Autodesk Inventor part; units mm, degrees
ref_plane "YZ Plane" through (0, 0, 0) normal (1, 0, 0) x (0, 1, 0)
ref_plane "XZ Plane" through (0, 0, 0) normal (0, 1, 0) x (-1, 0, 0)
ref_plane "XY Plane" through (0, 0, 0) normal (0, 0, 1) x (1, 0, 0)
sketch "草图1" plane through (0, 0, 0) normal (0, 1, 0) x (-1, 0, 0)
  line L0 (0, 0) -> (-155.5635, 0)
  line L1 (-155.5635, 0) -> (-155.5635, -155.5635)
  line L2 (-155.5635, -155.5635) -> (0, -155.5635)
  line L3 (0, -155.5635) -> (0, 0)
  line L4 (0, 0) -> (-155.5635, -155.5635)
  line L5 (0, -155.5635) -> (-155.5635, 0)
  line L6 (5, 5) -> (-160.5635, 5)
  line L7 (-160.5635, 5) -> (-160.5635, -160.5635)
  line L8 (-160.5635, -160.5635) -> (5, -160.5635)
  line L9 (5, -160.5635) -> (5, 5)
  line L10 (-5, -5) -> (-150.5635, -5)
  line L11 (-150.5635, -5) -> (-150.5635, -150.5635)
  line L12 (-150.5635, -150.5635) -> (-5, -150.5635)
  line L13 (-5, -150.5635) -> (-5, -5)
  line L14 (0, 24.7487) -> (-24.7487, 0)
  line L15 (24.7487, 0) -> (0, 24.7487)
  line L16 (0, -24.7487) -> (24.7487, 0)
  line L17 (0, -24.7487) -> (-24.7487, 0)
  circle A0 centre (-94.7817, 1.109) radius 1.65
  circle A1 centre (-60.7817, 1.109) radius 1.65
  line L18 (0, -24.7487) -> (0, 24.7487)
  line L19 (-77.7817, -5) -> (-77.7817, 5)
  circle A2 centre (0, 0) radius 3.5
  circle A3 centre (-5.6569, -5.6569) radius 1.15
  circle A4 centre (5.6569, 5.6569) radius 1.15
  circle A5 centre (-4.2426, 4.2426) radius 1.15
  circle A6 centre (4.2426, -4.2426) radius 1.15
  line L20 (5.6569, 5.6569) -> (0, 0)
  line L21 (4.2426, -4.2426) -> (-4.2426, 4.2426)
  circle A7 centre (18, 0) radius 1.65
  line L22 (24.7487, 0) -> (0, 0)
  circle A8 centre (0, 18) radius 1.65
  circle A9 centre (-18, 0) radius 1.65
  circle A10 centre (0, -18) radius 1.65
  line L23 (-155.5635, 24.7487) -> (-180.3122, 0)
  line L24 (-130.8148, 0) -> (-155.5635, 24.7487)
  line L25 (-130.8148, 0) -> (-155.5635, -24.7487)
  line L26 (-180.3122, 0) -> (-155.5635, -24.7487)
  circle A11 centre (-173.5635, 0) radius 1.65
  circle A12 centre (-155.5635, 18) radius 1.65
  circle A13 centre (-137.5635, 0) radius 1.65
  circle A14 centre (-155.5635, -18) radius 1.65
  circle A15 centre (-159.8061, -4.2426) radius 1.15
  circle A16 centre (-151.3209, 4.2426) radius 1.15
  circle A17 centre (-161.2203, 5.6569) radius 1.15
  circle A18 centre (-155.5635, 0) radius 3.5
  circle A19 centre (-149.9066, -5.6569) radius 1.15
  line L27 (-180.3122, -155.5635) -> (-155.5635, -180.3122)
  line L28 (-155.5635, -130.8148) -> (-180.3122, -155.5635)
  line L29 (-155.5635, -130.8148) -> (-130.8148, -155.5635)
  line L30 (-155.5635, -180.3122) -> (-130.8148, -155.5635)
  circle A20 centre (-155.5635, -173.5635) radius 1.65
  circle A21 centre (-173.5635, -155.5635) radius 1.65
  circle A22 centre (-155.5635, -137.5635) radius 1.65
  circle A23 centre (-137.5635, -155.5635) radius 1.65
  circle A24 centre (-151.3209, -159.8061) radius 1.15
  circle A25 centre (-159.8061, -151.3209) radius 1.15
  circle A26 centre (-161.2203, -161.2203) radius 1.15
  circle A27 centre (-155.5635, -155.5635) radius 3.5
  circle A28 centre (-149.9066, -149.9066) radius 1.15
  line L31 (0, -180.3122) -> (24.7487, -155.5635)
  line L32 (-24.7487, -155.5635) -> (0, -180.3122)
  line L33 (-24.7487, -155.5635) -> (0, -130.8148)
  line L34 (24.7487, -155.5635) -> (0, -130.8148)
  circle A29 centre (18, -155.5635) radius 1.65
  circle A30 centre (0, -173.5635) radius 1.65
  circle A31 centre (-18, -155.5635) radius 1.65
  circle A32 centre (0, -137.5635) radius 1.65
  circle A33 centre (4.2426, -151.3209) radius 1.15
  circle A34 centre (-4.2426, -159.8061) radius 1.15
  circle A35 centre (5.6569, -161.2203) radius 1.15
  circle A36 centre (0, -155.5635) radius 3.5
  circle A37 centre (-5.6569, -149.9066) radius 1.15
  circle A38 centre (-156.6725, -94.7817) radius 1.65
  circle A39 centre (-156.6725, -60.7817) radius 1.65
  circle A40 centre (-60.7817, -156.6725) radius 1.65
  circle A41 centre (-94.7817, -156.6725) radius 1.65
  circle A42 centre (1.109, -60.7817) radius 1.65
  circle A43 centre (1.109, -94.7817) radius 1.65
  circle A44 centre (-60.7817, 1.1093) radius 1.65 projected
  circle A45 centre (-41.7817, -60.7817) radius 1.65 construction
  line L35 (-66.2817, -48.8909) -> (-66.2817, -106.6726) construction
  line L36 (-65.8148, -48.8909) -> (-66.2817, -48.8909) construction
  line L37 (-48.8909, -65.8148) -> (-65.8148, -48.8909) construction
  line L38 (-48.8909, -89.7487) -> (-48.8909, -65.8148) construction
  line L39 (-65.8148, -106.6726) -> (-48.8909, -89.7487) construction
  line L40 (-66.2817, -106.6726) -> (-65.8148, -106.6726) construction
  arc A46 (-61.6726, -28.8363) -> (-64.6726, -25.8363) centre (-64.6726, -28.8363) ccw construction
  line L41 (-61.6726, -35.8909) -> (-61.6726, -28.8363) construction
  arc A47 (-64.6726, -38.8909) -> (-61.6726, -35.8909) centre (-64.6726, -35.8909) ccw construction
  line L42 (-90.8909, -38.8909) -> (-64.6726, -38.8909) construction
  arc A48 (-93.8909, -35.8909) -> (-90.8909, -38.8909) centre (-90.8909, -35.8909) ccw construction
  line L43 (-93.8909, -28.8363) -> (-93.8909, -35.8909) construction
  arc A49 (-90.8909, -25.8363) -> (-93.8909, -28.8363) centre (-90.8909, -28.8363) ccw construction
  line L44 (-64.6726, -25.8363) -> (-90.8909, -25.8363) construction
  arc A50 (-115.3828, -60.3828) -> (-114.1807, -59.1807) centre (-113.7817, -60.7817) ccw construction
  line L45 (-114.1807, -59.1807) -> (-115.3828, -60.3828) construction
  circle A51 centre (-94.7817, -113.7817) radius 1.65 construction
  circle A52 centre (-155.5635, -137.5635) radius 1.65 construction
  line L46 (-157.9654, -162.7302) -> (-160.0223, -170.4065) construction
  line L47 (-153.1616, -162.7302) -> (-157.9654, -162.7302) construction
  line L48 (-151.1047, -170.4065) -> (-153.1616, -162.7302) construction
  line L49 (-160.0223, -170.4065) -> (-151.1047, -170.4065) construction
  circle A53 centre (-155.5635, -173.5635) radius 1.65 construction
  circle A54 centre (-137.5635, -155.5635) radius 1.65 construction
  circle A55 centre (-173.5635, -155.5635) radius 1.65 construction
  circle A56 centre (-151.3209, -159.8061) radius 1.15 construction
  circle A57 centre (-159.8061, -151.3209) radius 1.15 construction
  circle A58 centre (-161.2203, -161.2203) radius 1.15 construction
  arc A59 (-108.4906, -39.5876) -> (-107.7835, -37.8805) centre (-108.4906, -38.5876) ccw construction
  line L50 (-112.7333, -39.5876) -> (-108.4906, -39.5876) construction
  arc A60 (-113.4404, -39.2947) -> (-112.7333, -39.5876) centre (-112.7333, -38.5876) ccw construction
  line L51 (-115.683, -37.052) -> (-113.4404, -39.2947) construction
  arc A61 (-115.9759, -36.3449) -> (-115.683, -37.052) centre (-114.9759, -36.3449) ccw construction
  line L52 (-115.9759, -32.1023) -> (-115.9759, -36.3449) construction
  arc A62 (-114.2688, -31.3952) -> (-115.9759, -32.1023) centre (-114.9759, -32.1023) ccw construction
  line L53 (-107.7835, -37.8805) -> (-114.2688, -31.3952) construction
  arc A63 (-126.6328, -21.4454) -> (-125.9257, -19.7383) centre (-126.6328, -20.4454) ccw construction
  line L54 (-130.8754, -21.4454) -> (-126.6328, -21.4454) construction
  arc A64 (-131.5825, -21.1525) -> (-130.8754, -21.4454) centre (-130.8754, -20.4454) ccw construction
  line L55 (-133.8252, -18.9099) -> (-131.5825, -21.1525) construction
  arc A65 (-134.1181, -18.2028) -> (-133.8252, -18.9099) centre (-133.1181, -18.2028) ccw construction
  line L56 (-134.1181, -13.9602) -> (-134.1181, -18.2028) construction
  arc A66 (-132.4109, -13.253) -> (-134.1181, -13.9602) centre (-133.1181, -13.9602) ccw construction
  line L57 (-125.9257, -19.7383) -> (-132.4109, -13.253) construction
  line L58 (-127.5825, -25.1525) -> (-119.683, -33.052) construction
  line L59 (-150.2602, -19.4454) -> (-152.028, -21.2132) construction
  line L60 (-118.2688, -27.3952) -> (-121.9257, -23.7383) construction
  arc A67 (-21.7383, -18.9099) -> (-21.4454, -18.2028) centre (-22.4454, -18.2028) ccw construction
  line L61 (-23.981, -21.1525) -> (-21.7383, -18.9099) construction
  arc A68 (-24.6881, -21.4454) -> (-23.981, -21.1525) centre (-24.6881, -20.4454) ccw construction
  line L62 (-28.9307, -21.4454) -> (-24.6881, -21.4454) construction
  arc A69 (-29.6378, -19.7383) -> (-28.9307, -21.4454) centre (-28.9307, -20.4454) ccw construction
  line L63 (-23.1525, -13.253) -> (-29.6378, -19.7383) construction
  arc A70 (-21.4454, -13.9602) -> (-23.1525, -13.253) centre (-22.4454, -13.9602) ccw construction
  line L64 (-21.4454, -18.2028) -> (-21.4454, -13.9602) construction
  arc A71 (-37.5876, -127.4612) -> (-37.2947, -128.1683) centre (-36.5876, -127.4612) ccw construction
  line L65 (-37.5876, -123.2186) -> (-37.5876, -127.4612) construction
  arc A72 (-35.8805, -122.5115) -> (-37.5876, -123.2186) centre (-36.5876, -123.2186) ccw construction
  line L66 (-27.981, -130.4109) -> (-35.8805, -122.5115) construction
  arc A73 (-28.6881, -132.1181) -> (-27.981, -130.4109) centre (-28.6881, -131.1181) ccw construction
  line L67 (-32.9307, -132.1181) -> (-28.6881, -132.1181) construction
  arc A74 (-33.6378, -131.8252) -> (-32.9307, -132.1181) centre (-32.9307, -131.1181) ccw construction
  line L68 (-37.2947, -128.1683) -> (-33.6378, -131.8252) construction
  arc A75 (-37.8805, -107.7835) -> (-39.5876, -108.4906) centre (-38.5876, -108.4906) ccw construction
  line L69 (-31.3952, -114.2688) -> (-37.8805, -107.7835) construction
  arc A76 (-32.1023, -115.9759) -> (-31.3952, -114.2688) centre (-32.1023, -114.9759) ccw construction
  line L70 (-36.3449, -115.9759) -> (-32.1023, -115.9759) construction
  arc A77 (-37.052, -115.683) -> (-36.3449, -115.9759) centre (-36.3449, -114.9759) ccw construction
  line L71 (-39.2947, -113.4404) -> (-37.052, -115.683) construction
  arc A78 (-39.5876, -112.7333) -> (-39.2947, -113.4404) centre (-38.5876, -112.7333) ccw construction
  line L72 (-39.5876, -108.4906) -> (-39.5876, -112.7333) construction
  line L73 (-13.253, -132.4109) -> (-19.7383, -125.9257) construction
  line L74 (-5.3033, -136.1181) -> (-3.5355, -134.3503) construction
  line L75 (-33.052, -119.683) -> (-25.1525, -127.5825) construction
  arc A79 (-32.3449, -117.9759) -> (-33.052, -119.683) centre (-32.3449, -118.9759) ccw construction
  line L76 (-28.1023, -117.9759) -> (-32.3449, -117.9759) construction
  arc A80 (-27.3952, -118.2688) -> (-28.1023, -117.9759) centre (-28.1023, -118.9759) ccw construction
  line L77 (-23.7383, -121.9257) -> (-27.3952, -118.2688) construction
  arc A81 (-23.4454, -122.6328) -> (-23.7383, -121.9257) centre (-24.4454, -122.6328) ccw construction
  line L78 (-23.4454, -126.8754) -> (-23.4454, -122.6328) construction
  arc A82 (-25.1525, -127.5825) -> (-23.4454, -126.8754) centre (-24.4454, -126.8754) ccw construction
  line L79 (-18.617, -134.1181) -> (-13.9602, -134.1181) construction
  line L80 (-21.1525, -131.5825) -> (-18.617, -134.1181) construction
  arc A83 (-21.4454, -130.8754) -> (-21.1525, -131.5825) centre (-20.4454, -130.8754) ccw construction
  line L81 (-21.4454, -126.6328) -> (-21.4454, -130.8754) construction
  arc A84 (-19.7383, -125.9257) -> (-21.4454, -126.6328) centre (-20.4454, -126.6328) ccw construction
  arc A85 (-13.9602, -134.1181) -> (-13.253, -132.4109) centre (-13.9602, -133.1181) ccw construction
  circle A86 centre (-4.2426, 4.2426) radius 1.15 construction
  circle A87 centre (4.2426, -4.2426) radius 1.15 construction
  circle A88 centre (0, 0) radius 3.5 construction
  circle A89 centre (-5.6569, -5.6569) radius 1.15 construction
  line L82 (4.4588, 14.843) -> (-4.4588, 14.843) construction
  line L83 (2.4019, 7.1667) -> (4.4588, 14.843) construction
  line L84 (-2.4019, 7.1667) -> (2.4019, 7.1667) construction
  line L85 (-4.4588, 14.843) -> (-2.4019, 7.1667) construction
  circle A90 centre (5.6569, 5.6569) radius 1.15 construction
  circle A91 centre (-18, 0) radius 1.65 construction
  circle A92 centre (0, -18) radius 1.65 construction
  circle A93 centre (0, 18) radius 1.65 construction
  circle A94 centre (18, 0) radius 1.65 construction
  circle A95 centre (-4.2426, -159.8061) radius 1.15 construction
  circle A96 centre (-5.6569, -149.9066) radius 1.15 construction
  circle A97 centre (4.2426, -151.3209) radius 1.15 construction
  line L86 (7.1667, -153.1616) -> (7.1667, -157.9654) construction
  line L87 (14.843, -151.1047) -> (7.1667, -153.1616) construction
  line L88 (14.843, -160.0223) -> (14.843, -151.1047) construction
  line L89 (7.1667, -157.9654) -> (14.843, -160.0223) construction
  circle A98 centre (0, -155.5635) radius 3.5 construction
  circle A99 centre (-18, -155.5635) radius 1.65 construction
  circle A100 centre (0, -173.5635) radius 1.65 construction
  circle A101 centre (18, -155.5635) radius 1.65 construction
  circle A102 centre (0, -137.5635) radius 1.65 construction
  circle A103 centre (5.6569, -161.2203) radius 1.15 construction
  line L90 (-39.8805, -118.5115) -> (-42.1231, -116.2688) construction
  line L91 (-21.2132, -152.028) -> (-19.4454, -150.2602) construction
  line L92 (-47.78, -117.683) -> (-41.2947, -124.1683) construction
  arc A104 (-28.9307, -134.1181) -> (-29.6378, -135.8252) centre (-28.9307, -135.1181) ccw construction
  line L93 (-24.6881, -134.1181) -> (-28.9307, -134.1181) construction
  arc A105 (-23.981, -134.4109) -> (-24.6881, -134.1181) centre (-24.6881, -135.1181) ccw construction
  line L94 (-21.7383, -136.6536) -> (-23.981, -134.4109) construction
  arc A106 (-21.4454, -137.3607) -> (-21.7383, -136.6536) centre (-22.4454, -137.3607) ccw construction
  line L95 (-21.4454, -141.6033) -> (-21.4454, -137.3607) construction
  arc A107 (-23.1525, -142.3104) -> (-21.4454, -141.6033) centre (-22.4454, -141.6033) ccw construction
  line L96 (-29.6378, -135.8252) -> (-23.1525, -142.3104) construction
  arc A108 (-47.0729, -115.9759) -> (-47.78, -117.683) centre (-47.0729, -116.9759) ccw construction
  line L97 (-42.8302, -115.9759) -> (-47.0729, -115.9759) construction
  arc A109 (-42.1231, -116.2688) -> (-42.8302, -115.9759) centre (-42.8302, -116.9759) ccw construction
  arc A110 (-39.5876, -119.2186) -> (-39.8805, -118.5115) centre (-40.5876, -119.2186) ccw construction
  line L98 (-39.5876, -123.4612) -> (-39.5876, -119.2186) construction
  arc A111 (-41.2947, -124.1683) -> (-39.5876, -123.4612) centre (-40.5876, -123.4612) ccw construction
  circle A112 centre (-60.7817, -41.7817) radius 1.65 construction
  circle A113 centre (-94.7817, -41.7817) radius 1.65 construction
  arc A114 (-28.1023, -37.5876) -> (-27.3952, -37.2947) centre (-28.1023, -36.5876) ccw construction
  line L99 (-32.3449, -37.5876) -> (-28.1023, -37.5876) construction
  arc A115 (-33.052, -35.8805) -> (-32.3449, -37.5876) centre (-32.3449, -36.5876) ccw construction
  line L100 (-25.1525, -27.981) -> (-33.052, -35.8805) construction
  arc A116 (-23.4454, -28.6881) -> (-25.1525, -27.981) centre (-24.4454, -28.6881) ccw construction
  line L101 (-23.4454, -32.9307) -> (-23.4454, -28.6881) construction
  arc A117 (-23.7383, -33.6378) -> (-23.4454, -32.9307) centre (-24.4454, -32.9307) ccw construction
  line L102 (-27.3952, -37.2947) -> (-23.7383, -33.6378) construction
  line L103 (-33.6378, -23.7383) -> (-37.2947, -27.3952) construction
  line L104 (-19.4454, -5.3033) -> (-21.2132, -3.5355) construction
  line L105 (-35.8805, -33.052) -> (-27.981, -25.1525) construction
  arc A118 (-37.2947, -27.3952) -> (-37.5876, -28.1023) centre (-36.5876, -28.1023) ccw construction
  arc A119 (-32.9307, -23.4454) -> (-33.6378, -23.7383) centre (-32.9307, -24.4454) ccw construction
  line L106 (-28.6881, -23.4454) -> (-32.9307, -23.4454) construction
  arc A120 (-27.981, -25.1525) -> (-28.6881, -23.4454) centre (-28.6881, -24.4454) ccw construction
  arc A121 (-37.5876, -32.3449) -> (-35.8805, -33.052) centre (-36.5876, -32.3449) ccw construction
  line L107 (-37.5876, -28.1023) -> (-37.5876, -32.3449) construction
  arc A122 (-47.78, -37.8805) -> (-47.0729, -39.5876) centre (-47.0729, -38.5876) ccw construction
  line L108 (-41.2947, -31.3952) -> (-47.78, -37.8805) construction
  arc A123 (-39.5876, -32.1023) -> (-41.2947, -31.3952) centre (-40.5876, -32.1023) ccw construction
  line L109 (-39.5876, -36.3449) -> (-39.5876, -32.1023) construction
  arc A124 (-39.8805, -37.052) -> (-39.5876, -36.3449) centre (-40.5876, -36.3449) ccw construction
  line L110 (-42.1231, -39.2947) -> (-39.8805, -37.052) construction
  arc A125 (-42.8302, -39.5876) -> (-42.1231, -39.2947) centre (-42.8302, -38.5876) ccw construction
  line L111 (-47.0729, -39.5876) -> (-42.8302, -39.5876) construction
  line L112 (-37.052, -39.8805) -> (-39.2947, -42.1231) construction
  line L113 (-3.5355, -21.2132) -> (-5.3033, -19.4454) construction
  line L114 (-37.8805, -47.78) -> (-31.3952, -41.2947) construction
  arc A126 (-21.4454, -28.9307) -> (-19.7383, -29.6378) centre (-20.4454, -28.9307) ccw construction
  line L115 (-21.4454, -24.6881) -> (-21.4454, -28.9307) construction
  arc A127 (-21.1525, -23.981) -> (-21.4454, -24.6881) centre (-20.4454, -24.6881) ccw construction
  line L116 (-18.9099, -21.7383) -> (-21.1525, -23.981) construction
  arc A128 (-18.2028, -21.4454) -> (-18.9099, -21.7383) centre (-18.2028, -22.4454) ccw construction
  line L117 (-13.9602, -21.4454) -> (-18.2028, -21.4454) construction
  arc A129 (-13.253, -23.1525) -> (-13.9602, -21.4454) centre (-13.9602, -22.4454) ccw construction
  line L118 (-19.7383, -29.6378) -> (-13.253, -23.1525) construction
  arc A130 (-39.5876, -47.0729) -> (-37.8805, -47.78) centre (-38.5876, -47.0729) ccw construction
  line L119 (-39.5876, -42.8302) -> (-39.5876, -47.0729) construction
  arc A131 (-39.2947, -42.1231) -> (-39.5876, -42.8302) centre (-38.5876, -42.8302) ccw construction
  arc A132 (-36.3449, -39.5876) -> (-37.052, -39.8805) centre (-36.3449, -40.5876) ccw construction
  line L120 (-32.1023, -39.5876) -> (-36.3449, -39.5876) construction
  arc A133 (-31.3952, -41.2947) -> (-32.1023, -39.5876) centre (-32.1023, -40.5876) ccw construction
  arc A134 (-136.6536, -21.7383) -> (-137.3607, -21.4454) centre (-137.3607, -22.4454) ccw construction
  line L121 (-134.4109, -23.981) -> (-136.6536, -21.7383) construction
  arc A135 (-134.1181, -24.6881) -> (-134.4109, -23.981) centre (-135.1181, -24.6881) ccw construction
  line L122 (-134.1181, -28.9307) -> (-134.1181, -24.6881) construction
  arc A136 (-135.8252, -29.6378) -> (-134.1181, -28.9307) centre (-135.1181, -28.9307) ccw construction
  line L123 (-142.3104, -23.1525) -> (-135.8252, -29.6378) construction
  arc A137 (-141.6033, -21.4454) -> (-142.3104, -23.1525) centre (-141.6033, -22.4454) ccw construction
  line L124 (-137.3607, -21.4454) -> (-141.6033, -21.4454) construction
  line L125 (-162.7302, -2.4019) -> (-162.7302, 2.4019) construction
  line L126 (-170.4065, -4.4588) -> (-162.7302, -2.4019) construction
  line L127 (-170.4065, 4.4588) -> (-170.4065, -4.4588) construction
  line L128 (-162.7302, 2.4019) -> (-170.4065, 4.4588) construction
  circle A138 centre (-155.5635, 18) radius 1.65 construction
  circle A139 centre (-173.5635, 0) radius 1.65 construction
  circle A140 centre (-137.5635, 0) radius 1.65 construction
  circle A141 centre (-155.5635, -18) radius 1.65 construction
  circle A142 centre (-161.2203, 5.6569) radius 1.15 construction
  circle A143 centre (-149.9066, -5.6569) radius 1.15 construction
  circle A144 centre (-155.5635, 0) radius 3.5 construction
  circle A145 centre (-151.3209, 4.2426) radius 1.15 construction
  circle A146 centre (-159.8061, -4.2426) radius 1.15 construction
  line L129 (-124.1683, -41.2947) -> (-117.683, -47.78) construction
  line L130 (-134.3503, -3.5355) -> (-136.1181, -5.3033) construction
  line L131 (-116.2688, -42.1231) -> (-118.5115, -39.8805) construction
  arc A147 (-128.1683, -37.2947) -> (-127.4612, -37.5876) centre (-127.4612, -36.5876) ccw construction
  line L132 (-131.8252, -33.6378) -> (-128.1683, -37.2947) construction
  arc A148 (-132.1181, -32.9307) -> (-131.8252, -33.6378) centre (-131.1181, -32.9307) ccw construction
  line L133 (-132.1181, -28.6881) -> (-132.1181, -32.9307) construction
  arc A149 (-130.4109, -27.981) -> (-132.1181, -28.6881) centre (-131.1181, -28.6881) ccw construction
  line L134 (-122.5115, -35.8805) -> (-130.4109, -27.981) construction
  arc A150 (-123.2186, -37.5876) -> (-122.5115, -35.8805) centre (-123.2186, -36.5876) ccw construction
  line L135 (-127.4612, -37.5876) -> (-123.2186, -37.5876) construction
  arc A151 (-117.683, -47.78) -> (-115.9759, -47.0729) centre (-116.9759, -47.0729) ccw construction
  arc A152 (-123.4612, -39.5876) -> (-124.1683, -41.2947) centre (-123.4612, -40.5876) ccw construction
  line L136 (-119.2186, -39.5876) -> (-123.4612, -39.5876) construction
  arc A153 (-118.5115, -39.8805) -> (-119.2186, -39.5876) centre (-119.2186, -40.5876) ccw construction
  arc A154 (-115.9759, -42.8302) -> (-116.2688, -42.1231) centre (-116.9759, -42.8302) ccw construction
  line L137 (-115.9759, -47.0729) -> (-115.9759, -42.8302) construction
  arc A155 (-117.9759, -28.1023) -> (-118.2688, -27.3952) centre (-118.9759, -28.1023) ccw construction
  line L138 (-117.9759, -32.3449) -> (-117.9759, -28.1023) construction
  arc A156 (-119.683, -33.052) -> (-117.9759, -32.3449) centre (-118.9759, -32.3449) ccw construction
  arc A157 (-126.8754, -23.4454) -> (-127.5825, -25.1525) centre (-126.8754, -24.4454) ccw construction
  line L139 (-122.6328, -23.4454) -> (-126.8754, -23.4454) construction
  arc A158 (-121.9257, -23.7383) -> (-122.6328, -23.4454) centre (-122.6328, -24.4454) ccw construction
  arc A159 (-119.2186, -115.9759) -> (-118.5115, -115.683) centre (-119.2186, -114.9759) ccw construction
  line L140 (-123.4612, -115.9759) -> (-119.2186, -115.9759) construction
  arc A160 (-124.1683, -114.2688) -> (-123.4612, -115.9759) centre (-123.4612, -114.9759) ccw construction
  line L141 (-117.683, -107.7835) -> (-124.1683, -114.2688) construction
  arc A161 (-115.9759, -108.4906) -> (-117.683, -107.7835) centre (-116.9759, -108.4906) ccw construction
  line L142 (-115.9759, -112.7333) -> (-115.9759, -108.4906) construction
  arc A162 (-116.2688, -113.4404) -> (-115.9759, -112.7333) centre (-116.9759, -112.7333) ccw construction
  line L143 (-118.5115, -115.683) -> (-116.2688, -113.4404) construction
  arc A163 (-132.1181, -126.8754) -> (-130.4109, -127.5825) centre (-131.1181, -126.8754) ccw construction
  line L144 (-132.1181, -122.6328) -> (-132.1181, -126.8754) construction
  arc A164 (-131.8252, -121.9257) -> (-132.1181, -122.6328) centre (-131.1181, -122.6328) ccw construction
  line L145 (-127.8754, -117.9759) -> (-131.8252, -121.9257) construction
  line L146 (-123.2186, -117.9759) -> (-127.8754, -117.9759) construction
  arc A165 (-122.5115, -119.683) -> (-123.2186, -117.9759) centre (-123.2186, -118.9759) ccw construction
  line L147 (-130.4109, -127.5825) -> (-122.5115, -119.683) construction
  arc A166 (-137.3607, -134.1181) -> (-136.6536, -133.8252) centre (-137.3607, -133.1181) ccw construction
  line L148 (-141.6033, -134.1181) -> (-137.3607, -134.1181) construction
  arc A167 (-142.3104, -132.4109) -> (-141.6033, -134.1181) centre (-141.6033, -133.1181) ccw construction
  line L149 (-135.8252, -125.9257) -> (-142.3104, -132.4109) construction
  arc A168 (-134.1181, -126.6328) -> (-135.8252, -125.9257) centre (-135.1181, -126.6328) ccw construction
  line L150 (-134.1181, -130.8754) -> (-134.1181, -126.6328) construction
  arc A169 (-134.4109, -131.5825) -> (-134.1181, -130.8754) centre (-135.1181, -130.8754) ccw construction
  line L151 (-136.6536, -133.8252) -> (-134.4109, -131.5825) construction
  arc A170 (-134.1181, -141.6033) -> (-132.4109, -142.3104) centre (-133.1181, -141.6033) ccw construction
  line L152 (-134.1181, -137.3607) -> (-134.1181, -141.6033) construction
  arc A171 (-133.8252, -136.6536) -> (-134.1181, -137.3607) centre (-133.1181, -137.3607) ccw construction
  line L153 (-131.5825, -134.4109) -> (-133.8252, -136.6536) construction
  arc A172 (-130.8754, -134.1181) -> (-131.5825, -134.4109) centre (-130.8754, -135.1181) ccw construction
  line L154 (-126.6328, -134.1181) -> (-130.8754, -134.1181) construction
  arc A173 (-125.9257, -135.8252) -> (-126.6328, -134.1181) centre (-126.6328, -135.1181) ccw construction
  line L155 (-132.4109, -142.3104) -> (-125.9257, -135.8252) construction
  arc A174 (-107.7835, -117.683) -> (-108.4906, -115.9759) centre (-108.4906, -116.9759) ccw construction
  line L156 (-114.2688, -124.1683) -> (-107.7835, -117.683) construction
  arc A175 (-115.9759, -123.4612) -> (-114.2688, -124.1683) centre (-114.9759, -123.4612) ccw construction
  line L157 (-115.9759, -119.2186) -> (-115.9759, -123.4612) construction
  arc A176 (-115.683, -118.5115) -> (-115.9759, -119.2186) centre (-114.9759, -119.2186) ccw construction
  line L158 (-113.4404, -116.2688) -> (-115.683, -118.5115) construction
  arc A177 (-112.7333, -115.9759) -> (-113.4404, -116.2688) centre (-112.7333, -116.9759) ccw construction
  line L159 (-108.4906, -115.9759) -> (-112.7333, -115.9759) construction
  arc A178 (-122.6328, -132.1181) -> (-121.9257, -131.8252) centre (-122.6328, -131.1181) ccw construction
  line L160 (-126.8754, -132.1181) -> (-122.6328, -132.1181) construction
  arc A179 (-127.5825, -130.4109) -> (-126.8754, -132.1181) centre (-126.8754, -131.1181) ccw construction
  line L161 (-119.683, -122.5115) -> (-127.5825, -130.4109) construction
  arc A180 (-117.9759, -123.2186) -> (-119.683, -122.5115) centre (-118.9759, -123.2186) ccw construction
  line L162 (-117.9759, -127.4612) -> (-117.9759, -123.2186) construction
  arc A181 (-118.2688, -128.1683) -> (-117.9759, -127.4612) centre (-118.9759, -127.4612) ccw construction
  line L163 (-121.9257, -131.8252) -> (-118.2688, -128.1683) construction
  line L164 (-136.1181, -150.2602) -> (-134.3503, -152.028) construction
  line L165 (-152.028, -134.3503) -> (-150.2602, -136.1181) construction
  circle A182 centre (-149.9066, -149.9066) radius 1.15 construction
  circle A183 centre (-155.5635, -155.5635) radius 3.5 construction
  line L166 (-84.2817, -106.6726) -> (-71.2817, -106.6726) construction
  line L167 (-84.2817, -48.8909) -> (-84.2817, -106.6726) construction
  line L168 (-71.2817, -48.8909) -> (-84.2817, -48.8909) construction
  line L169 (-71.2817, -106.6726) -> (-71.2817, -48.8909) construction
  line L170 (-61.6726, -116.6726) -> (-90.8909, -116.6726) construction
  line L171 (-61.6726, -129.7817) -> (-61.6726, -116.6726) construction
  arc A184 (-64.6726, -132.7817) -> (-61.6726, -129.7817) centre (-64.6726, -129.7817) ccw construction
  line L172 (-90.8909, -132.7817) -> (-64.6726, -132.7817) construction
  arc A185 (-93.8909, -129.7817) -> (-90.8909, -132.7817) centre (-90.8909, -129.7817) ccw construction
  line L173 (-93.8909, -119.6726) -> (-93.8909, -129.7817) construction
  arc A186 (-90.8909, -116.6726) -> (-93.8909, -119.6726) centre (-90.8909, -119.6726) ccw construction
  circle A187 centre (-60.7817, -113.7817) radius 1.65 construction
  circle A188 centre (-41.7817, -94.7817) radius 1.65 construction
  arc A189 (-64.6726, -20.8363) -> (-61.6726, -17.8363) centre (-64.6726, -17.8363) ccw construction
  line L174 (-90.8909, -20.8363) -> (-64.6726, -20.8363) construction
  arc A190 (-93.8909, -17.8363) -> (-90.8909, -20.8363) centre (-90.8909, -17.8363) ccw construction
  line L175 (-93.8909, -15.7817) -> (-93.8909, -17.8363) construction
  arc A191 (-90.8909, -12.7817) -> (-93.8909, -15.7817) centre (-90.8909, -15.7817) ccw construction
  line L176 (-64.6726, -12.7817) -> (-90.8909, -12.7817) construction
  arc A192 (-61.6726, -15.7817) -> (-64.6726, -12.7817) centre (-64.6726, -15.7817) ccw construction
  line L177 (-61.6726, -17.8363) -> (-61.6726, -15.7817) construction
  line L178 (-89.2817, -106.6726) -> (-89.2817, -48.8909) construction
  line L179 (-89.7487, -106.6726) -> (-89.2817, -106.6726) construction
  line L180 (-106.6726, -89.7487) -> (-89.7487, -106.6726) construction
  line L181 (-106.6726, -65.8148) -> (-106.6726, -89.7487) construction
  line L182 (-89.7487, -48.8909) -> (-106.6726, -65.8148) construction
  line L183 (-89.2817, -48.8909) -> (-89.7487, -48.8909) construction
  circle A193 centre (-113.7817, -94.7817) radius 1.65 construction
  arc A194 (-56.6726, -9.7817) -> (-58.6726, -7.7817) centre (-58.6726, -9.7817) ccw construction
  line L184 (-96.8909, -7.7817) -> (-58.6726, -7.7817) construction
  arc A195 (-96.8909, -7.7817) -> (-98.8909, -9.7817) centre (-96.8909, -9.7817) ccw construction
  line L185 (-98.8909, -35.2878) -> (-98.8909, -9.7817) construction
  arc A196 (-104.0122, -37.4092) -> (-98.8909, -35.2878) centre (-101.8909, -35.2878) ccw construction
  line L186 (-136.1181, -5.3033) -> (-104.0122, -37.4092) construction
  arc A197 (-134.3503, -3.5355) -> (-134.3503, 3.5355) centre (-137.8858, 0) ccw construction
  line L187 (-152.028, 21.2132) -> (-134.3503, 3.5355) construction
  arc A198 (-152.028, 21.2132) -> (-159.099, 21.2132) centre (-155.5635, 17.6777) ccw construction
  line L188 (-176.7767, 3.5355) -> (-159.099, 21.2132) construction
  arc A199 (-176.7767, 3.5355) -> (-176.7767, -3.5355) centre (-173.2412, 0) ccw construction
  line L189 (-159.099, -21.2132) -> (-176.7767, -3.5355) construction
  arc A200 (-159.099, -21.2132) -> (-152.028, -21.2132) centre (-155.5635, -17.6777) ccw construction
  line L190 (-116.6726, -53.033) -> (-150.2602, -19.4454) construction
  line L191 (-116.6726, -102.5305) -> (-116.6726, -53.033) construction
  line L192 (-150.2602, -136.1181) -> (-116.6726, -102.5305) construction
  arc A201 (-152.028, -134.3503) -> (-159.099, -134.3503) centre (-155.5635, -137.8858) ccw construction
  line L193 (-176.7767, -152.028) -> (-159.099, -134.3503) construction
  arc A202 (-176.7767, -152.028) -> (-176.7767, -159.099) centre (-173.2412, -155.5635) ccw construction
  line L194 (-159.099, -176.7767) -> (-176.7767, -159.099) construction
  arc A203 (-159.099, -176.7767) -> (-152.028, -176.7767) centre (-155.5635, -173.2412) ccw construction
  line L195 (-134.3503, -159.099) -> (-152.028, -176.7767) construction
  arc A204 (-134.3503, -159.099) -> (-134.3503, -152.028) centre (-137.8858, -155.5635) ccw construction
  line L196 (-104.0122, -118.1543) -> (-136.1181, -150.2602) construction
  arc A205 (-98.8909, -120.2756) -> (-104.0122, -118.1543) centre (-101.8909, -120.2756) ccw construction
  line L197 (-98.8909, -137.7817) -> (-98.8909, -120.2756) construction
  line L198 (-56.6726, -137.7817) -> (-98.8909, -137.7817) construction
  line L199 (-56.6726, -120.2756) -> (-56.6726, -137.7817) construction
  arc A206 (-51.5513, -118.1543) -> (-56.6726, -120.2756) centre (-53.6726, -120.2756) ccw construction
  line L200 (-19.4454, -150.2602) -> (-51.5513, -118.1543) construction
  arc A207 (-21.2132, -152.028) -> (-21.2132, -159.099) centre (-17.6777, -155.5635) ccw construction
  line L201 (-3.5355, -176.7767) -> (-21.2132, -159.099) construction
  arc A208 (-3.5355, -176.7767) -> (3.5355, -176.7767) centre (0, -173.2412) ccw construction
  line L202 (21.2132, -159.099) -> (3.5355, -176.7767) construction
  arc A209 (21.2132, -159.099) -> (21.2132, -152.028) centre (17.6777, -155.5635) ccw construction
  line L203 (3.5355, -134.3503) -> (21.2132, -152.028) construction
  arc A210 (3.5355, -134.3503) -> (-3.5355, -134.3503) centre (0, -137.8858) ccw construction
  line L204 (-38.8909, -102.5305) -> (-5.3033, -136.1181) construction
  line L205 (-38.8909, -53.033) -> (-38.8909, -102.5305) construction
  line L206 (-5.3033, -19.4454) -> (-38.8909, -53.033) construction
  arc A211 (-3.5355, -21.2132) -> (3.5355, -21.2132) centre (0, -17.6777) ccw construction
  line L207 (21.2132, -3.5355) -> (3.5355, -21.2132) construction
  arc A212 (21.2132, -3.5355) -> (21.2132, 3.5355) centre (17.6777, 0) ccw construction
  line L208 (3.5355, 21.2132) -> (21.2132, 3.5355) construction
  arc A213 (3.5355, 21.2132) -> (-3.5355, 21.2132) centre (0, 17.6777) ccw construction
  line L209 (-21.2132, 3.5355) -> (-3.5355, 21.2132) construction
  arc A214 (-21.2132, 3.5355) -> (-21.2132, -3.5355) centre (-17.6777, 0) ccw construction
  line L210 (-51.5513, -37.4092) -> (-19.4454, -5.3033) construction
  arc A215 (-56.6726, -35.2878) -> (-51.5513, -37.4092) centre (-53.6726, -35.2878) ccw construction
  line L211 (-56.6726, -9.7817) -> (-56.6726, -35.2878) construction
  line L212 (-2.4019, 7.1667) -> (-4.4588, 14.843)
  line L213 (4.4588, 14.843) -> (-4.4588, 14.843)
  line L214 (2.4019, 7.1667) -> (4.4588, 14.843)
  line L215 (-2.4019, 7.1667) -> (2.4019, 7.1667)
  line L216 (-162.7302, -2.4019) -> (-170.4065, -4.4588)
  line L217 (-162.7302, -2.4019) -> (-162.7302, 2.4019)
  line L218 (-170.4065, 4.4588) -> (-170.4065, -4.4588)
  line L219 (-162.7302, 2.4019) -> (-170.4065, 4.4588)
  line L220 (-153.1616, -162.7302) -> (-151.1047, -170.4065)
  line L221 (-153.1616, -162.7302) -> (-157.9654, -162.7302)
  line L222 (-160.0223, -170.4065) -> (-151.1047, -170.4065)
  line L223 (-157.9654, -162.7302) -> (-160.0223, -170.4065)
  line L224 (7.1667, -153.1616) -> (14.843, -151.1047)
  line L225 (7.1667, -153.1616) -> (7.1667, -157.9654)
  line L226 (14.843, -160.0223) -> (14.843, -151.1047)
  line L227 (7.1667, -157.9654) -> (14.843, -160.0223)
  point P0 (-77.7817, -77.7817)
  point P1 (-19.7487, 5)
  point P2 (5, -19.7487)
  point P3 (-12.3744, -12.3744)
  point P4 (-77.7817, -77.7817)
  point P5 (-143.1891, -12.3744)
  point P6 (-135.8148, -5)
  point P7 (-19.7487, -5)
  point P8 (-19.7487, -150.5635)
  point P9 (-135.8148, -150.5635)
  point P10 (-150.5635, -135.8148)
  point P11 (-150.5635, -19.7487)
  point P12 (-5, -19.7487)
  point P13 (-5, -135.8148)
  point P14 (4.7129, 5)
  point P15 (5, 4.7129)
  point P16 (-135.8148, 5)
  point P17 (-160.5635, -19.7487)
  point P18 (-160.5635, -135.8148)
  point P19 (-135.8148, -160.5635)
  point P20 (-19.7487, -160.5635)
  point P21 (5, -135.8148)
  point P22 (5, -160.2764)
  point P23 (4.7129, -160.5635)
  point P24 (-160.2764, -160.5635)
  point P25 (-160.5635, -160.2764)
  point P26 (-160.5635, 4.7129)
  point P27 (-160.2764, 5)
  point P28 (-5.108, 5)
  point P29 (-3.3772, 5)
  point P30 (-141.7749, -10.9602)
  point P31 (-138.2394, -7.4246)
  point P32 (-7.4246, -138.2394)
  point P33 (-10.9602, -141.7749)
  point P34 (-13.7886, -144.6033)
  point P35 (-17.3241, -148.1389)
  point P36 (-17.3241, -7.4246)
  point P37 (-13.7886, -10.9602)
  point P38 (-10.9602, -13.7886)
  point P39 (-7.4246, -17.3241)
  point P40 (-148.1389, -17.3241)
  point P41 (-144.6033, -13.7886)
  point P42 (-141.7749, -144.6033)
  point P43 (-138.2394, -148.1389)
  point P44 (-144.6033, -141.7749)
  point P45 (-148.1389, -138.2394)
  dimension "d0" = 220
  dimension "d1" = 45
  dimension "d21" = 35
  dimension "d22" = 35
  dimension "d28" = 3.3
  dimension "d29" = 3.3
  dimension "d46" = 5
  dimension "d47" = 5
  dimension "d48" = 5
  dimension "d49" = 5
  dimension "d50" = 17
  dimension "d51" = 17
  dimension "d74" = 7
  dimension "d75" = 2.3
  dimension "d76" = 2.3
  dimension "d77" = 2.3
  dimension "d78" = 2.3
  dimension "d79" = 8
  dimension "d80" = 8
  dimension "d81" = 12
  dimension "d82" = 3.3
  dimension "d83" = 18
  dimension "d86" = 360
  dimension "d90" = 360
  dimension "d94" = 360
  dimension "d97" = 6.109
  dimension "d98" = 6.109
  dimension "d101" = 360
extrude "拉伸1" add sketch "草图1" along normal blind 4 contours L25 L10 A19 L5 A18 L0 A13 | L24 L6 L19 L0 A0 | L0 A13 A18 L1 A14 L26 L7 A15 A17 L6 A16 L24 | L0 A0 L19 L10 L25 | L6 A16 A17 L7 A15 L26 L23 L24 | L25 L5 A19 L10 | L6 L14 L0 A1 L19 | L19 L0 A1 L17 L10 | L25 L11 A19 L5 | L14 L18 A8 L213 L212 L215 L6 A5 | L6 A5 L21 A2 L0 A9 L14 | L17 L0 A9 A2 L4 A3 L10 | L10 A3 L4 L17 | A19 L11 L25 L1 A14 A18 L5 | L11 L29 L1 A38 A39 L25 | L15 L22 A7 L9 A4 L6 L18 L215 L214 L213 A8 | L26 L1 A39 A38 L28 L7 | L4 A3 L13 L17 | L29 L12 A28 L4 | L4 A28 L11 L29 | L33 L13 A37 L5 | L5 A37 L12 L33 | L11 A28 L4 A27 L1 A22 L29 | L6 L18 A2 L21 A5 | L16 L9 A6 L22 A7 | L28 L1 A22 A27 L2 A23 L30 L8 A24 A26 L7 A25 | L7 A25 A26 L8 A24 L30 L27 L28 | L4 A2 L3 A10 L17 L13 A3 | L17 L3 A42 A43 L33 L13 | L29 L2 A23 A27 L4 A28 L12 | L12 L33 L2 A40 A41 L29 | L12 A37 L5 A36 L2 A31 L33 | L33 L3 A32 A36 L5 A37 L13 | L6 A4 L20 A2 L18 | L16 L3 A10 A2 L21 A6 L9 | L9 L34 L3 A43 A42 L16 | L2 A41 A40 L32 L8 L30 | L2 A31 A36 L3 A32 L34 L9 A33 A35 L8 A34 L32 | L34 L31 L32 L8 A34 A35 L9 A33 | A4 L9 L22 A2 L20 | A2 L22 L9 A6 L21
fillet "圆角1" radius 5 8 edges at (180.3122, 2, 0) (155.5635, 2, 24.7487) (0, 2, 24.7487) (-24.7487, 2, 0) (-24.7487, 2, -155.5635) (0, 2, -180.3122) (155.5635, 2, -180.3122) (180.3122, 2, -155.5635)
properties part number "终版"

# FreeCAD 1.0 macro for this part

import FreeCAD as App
import Part
import Sketcher
from FreeCAD import Vector
Q = App.Units.Quantity


def edges_at(feature, points):
    """Names of the edges that pass closest to the given points."""
    edges = feature.Shape.Edges
    near = lambda p: min(range(len(edges)), key=lambda i: edges[i].distToShape(Part.Vertex(*p))[0])
    return sorted({f"Edge{near(p) + 1}" for p in points})

doc = App.newDocument("Part")
body = doc.addObject("PartDesign::Body", "Body")

sketch1 = body.newObject("Sketcher::SketchObject", "Sketch")
sketch1.AttachmentSupport = (doc.getObject("XZ_Plane"), [""])
sketch1.MapMode = "FlatFace"
sketch1.addGeometry([
    Part.LineSegment(Vector(135.8, 5, 0), Vector(155.6, 24.7, 0)),
    Part.LineSegment(Vector(155.6, 24.7, 0), Vector(180.3, 0, 0)),
    Part.LineSegment(Vector(180.3, 0, 0), Vector(160.6, -19.7, 0)),
    Part.LineSegment(Vector(160.6, -19.7, 0), Vector(160.6, -135.8, 0)),
    Part.LineSegment(Vector(160.6, -135.8, 0), Vector(180.3, -155.6, 0)),
    Part.LineSegment(Vector(180.3, -155.6, 0), Vector(155.6, -180.3, 0)),
    Part.LineSegment(Vector(155.6, -180.3, 0), Vector(135.8, -160.6, 0)),
    Part.LineSegment(Vector(135.8, -160.6, 0), Vector(19.7, -160.6, 0)),
    Part.LineSegment(Vector(19.7, -160.6, 0), Vector(0, -180.3, 0)),
    Part.LineSegment(Vector(0, -180.3, 0), Vector(-24.7, -155.6, 0)),
    Part.LineSegment(Vector(-24.7, -155.6, 0), Vector(-5, -135.8, 0)),
    Part.LineSegment(Vector(-5, -135.8, 0), Vector(-5, -19.7, 0)),
    Part.LineSegment(Vector(-5, -19.7, 0), Vector(-24.7, 0, 0)),
    Part.LineSegment(Vector(-24.7, 0, 0), Vector(0, 24.7, 0)),
    Part.LineSegment(Vector(0, 24.7, 0), Vector(19.7, 5, 0)),
    Part.LineSegment(Vector(19.7, 5, 0), Vector(135.8, 5, 0)),
    Part.Circle(Vector(149.9, -5.7, 0), Vector(0, 0, 1), 1.1),
    Part.Circle(Vector(155.6, 0, 0), Vector(0, 0, 1), 3.5),
    Part.Circle(Vector(137.6, 0, 0), Vector(0, 0, 1), 1.6),
    Part.Circle(Vector(94.8, 1.1, 0), Vector(0, 0, 1), 1.6),
    Part.LineSegment(Vector(135.8, -5, 0), Vector(19.7, -5, 0)),
    Part.LineSegment(Vector(19.7, -5, 0), Vector(5, -19.7, 0)),
    Part.LineSegment(Vector(5, -19.7, 0), Vector(5, -135.8, 0)),
    Part.LineSegment(Vector(5, -135.8, 0), Vector(19.7, -150.6, 0)),
    Part.LineSegment(Vector(19.7, -150.6, 0), Vector(135.8, -150.6, 0)),
    Part.LineSegment(Vector(135.8, -150.6, 0), Vector(150.6, -135.8, 0)),
    Part.LineSegment(Vector(150.6, -135.8, 0), Vector(150.6, -19.7, 0)),
    Part.LineSegment(Vector(150.6, -19.7, 0), Vector(135.8, -5, 0)),
    Part.Circle(Vector(155.6, -18, 0), Vector(0, 0, 1), 1.6),
    Part.Circle(Vector(151.3, 4.2, 0), Vector(0, 0, 1), 1.1),
    Part.Circle(Vector(159.8, -4.2, 0), Vector(0, 0, 1), 1.1),
    Part.Circle(Vector(161.2, 5.7, 0), Vector(0, 0, 1), 1.1),
    Part.Circle(Vector(60.8, 1.1, 0), Vector(0, 0, 1), 1.6),
    Part.Circle(Vector(156.7, -94.8, 0), Vector(0, 0, 1), 1.6),
    Part.Circle(Vector(156.7, -60.8, 0), Vector(0, 0, 1), 1.6),
    Part.Circle(Vector(155.6, 18, 0), Vector(0, 0, 1), 1.6),
    Part.LineSegment(Vector(170.4, 4.5, 0), Vector(162.7, 2.4, 0)),
    Part.LineSegment(Vector(162.7, 2.4, 0), Vector(162.7, -2.4, 0)),
    Part.LineSegment(Vector(162.7, -2.4, 0), Vector(170.4, -4.5, 0)),
    Part.LineSegment(Vector(170.4, -4.5, 0), Vector(170.4, 4.5, 0)),
    Part.Circle(Vector(173.6, 0, 0), Vector(0, 0, 1), 1.6),
    Part.Circle(Vector(18, 0, 0), Vector(0, 0, 1), 1.6),
    Part.Circle(Vector(0, 0, 0), Vector(0, 0, 1), 3.5),
    Part.Circle(Vector(5.7, -5.7, 0), Vector(0, 0, 1), 1.1),
    Part.Circle(Vector(149.9, -149.9, 0), Vector(0, 0, 1), 1.1),
    Part.Circle(Vector(155.6, -155.6, 0), Vector(0, 0, 1), 3.5),
    Part.Circle(Vector(155.6, -137.6, 0), Vector(0, 0, 1), 1.6),
    Part.Circle(Vector(159.8, -151.3, 0), Vector(0, 0, 1), 1.1),
    Part.Circle(Vector(137.6, -155.6, 0), Vector(0, 0, 1), 1.6),
    Part.Circle(Vector(151.3, -159.8, 0), Vector(0, 0, 1), 1.1),
    Part.Circle(Vector(161.2, -161.2, 0), Vector(0, 0, 1), 1.1),
    Part.Circle(Vector(4.2, 4.2, 0), Vector(0, 0, 1), 1.1),
    Part.Circle(Vector(0, -18, 0), Vector(0, 0, 1), 1.6),
    Part.LineSegment(Vector(153.2, -162.7, 0), Vector(151.1, -170.4, 0)),
    Part.LineSegment(Vector(151.1, -170.4, 0), Vector(160, -170.4, 0)),
    Part.LineSegment(Vector(160, -170.4, 0), Vector(158, -162.7, 0)),
    Part.LineSegment(Vector(158, -162.7, 0), Vector(153.2, -162.7, 0)),
    Part.Circle(Vector(155.6, -173.6, 0), Vector(0, 0, 1), 1.6),
    Part.Circle(Vector(173.6, -155.6, 0), Vector(0, 0, 1), 1.6),
    Part.Circle(Vector(94.8, -156.7, 0), Vector(0, 0, 1), 1.6),
    Part.Circle(Vector(60.8, -156.7, 0), Vector(0, 0, 1), 1.6),
    Part.Circle(Vector(0, 18, 0), Vector(0, 0, 1), 1.6),
    Part.LineSegment(Vector(4.5, 14.8, 0), Vector(-4.5, 14.8, 0)),
    Part.LineSegment(Vector(-4.5, 14.8, 0), Vector(-2.4, 7.2, 0)),
    Part.LineSegment(Vector(-2.4, 7.2, 0), Vector(2.4, 7.2, 0)),
    Part.LineSegment(Vector(2.4, 7.2, 0), Vector(4.5, 14.8, 0)),
    Part.Circle(Vector(-4.2, -4.2, 0), Vector(0, 0, 1), 1.1),
    Part.Circle(Vector(-1.1, -60.8, 0), Vector(0, 0, 1), 1.6),
    Part.Circle(Vector(-1.1, -94.8, 0), Vector(0, 0, 1), 1.6),
    Part.Circle(Vector(18, -155.6, 0), Vector(0, 0, 1), 1.6),
    Part.Circle(Vector(0, -155.6, 0), Vector(0, 0, 1), 3.5),
    Part.Circle(Vector(0, -137.6, 0), Vector(0, 0, 1), 1.6),
    Part.Circle(Vector(-4.2, -151.3, 0), Vector(0, 0, 1), 1.1),
    Part.Circle(Vector(-5.7, -161.2, 0), Vector(0, 0, 1), 1.1),
    Part.Circle(Vector(4.2, -159.8, 0), Vector(0, 0, 1), 1.1),
    Part.Circle(Vector(-18, 0, 0), Vector(0, 0, 1), 1.6),
    Part.Circle(Vector(-5.7, 5.7, 0), Vector(0, 0, 1), 1.1),
    Part.Circle(Vector(5.7, -149.9, 0), Vector(0, 0, 1), 1.1),
    Part.LineSegment(Vector(-14.8, -160, 0), Vector(-7.2, -158, 0)),
    Part.LineSegment(Vector(-7.2, -158, 0), Vector(-7.2, -153.2, 0)),
    Part.LineSegment(Vector(-7.2, -153.2, 0), Vector(-14.8, -151.1, 0)),
    Part.LineSegment(Vector(-14.8, -151.1, 0), Vector(-14.8, -160, 0)),
    Part.Circle(Vector(-18, -155.6, 0), Vector(0, 0, 1), 1.6),
    Part.Circle(Vector(0, -173.6, 0), Vector(0, 0, 1), 1.6),
], False)
sketch1.addConstraint([
    Sketcher.Constraint("Coincident", 0, 2, 1, 1),
    Sketcher.Constraint("Coincident", 1, 2, 2, 1),
    Sketcher.Constraint("Coincident", 2, 2, 3, 1),
    Sketcher.Constraint("Coincident", 3, 2, 4, 1),
    Sketcher.Constraint("Coincident", 4, 2, 5, 1),
    Sketcher.Constraint("Coincident", 5, 2, 6, 1),
    Sketcher.Constraint("Coincident", 6, 2, 7, 1),
    Sketcher.Constraint("Coincident", 7, 2, 8, 1),
    Sketcher.Constraint("Coincident", 8, 2, 9, 1),
    Sketcher.Constraint("Coincident", 9, 2, 10, 1),
    Sketcher.Constraint("Coincident", 10, 2, 11, 1),
    Sketcher.Constraint("Coincident", 11, 2, 12, 1),
    Sketcher.Constraint("Coincident", 12, 2, 13, 1),
    Sketcher.Constraint("Coincident", 13, 2, 14, 1),
    Sketcher.Constraint("Coincident", 14, 2, 15, 1),
    Sketcher.Constraint("Coincident", 15, 2, 0, 1),
    Sketcher.Constraint("Coincident", 20, 2, 21, 1),
    Sketcher.Constraint("Coincident", 21, 2, 22, 1),
    Sketcher.Constraint("Coincident", 22, 2, 23, 1),
    Sketcher.Constraint("Coincident", 23, 2, 24, 1),
    Sketcher.Constraint("Coincident", 24, 2, 25, 1),
    Sketcher.Constraint("Coincident", 25, 2, 26, 1),
    Sketcher.Constraint("Coincident", 26, 2, 27, 1),
    Sketcher.Constraint("Coincident", 27, 2, 20, 1),
    Sketcher.Constraint("Coincident", 36, 2, 37, 1),
    Sketcher.Constraint("Coincident", 37, 2, 38, 1),
    Sketcher.Constraint("Coincident", 38, 2, 39, 1),
    Sketcher.Constraint("Coincident", 39, 2, 36, 1),
    Sketcher.Constraint("Coincident", 53, 2, 54, 1),
    Sketcher.Constraint("Coincident", 54, 2, 55, 1),
    Sketcher.Constraint("Coincident", 55, 2, 56, 1),
    Sketcher.Constraint("Coincident", 56, 2, 53, 1),
    Sketcher.Constraint("Coincident", 62, 2, 63, 1),
    Sketcher.Constraint("Coincident", 63, 2, 64, 1),
    Sketcher.Constraint("Coincident", 64, 2, 65, 1),
    Sketcher.Constraint("Coincident", 65, 2, 62, 1),
    Sketcher.Constraint("Coincident", 78, 2, 79, 1),
    Sketcher.Constraint("Coincident", 79, 2, 80, 1),
    Sketcher.Constraint("Coincident", 80, 2, 81, 1),
    Sketcher.Constraint("Coincident", 81, 2, 78, 1),
    Sketcher.Constraint("Vertical", 3),
    Sketcher.Constraint("Horizontal", 7),
    Sketcher.Constraint("Vertical", 11),
    Sketcher.Constraint("Horizontal", 15),
    Sketcher.Constraint("Horizontal", 20),
    Sketcher.Constraint("Vertical", 22),
    Sketcher.Constraint("Horizontal", 24),
    Sketcher.Constraint("Vertical", 26),
    Sketcher.Constraint("Vertical", 37),
    Sketcher.Constraint("Vertical", 39),
    Sketcher.Constraint("Horizontal", 54),
    Sketcher.Constraint("Horizontal", 56),
    Sketcher.Constraint("Horizontal", 62),
    Sketcher.Constraint("Horizontal", 64),
    Sketcher.Constraint("Vertical", 79),
    Sketcher.Constraint("Vertical", 81),
    Sketcher.Constraint("Coincident", 42, 3, -1, 1),
    Sketcher.Constraint("Equal", 18, 19),
    Sketcher.Constraint("Equal", 19, 28),
    Sketcher.Constraint("Equal", 16, 29),
    Sketcher.Constraint("Equal", 29, 30),
    Sketcher.Constraint("Equal", 30, 31),
    Sketcher.Constraint("Equal", 28, 32),
    Sketcher.Constraint("Equal", 32, 33),
    Sketcher.Constraint("Equal", 33, 34),
    Sketcher.Constraint("Equal", 34, 35),
    Sketcher.Constraint("Equal", 35, 40),
    Sketcher.Constraint("Equal", 40, 41),
    Sketcher.Constraint("Equal", 17, 42),
    Sketcher.Constraint("Equal", 31, 43),
    Sketcher.Constraint("Equal", 43, 44),
    Sketcher.Constraint("Equal", 42, 45),
    Sketcher.Constraint("Equal", 41, 46),
    Sketcher.Constraint("Equal", 44, 47),
    Sketcher.Constraint("Equal", 46, 48),
    Sketcher.Constraint("Equal", 47, 49),
    Sketcher.Constraint("Equal", 49, 50),
    Sketcher.Constraint("Equal", 50, 51),
    Sketcher.Constraint("Equal", 48, 52),
    Sketcher.Constraint("Equal", 52, 57),
    Sketcher.Constraint("Equal", 57, 58),
    Sketcher.Constraint("Equal", 58, 59),
    Sketcher.Constraint("Equal", 59, 60),
    Sketcher.Constraint("Equal", 60, 61),
    Sketcher.Constraint("Equal", 51, 66),
    Sketcher.Constraint("Equal", 61, 67),
    Sketcher.Constraint("Equal", 67, 68),
    Sketcher.Constraint("Equal", 68, 69),
    Sketcher.Constraint("Equal", 45, 70),
    Sketcher.Constraint("Equal", 69, 71),
    Sketcher.Constraint("Equal", 66, 72),
    Sketcher.Constraint("Equal", 72, 73),
    Sketcher.Constraint("Equal", 73, 74),
    Sketcher.Constraint("Equal", 71, 75),
    Sketcher.Constraint("Equal", 74, 76),
    Sketcher.Constraint("Equal", 76, 77),
    Sketcher.Constraint("Equal", 75, 82),
    Sketcher.Constraint("Equal", 82, 83),
    Sketcher.Constraint("Symmetric", 52, 3, 61, 3, -1, 1),
    Sketcher.Constraint("Symmetric", 51, 3, 66, 3, -1, 1),
    Sketcher.Constraint("Symmetric", 41, 3, 75, 3, -1, 1),
    Sketcher.Constraint("Symmetric", 43, 3, 76, 3, -1, 1),
    Sketcher.Constraint("Symmetric", 69, 3, 82, 3, -2),
    Sketcher.Constraint("Symmetric", 11, 2, 21, 2, -2),
    Sketcher.Constraint("Symmetric", 28, 3, 35, 3, -1),
    Sketcher.Constraint("Symmetric", 14, 2, 20, 2, -1),
    Sketcher.Constraint("PointOnObject", 17, 3, -1),
    Sketcher.Constraint("PointOnObject", 18, 3, -1),
    Sketcher.Constraint("PointOnObject", 40, 3, -1),
    Sketcher.Constraint("PointOnObject", 41, 3, -1),
    Sketcher.Constraint("PointOnObject", 52, 3, -2),
    Sketcher.Constraint("PointOnObject", 70, 3, -2),
    Sketcher.Constraint("PointOnObject", 71, 3, -2),
    Sketcher.Constraint("PointOnObject", 83, 3, -2),
    Sketcher.Constraint("PointOnObject", 1, 2, -1),
    Sketcher.Constraint("PointOnObject", 8, 2, -2),
    Sketcher.Constraint("PointOnObject", 12, 2, -1),
    Sketcher.Constraint("PointOnObject", 13, 2, -2),
    Sketcher.Constraint("Perpendicular", 0, 1),
    Sketcher.Constraint("Perpendicular", 1, 2),
    Sketcher.Constraint("Perpendicular", 2, 4),
    Sketcher.Constraint("Perpendicular", 4, 5),
    Sketcher.Constraint("Perpendicular", 5, 6),
    Sketcher.Constraint("Perpendicular", 6, 8),
    Sketcher.Constraint("Perpendicular", 8, 9),
    Sketcher.Constraint("Perpendicular", 9, 10),
    Sketcher.Constraint("Perpendicular", 10, 12),
    Sketcher.Constraint("Perpendicular", 12, 13),
    Sketcher.Constraint("Perpendicular", 13, 14),
    Sketcher.Constraint("Perpendicular", 14, 21),
    Sketcher.Constraint("Perpendicular", 21, 23),
    Sketcher.Constraint("Perpendicular", 23, 25),
    Sketcher.Constraint("Perpendicular", 25, 27),
    Sketcher.Constraint("Perpendicular", 38, 53),
    Sketcher.Constraint("Perpendicular", 36, 55),
    Sketcher.Constraint("Parallel", 55, 63),
    Sketcher.Constraint("Parallel", 53, 65),
    Sketcher.Constraint("Perpendicular", 63, 78),
    Sketcher.Constraint("Perpendicular", 65, 80),
    Sketcher.Constraint("Horizontal", 19, 3, 32, 3),
    Sketcher.Constraint("Horizontal", 16, 3, 43, 3),
    Sketcher.Constraint("Horizontal", 45, 3, 48, 3),
    Sketcher.Constraint("Horizontal", 29, 3, 51, 3),
    Sketcher.Constraint("Horizontal", 28, 3, 52, 3),
    Sketcher.Constraint("Horizontal", 48, 3, 58, 3),
    Sketcher.Constraint("Horizontal", 59, 3, 60, 3),
    Sketcher.Constraint("Horizontal", 30, 3, 66, 3),
    Sketcher.Constraint("Horizontal", 34, 3, 67, 3),
    Sketcher.Constraint("Horizontal", 33, 3, 68, 3),
    Sketcher.Constraint("Horizontal", 58, 3, 69, 3),
    Sketcher.Constraint("Horizontal", 69, 3, 70, 3),
    Sketcher.Constraint("Horizontal", 46, 3, 71, 3),
    Sketcher.Constraint("Horizontal", 47, 3, 72, 3),
    Sketcher.Constraint("Horizontal", 50, 3, 73, 3),
    Sketcher.Constraint("Horizontal", 49, 3, 74, 3),
    Sketcher.Constraint("Horizontal", 31, 3, 76, 3),
    Sketcher.Constraint("Horizontal", 44, 3, 77, 3),
    Sketcher.Constraint("Horizontal", 57, 3, 83, 3),
    Sketcher.Constraint("Horizontal", 82, 3, 4, 2),
    Sketcher.Constraint("Horizontal", 5, 2, 8, 2),
    Sketcher.Constraint("Horizontal", 4, 2, 9, 2),
    Sketcher.Constraint("Horizontal", 3, 2, 10, 2),
    Sketcher.Constraint("Horizontal", 2, 2, 11, 2),
    Sketcher.Constraint("Horizontal", 0, 2, 13, 2),
    Sketcher.Constraint("Horizontal", 10, 2, 22, 2),
    Sketcher.Constraint("Horizontal", 22, 2, 25, 2),
    Sketcher.Constraint("Horizontal", 21, 2, 26, 2),
    Sketcher.Constraint("Vertical", 17, 3, 28, 3),
    Sketcher.Constraint("Vertical", 33, 3, 34, 3),
    Sketcher.Constraint("Vertical", 16, 3, 44, 3),
    Sketcher.Constraint("Vertical", 35, 3, 45, 3),
    Sketcher.Constraint("Vertical", 45, 3, 46, 3),
    Sketcher.Constraint("Vertical", 30, 3, 47, 3),
    Sketcher.Constraint("Vertical", 18, 3, 48, 3),
    Sketcher.Constraint("Vertical", 29, 3, 49, 3),
    Sketcher.Constraint("Vertical", 31, 3, 50, 3),
    Sketcher.Constraint("Vertical", 46, 3, 57, 3),
    Sketcher.Constraint("Vertical", 40, 3, 58, 3),
    Sketcher.Constraint("Vertical", 19, 3, 59, 3),
    Sketcher.Constraint("Vertical", 32, 3, 60, 3),
    Sketcher.Constraint("Vertical", 67, 3, 68, 3),
    Sketcher.Constraint("Vertical", 41, 3, 69, 3),
    Sketcher.Constraint("Vertical", 66, 3, 72, 3),
    Sketcher.Constraint("Vertical", 51, 3, 74, 3),
    Sketcher.Constraint("Vertical", 73, 3, 76, 3),
    Sketcher.Constraint("Vertical", 43, 3, 77, 3),
    Sketcher.Constraint("Vertical", 57, 3, 0, 2),
    Sketcher.Constraint("Vertical", 1, 2, 4, 2),
    Sketcher.Constraint("Vertical", 7, 2, 14, 2),
    Sketcher.Constraint("Vertical", 20, 2, 23, 2),
    Sketcher.Constraint("Vertical", 15, 2, 24, 2),
    Sketcher.Constraint("Equal", 54, 62),
    Sketcher.Constraint("Equal", 56, 64),
    Sketcher.Constraint("Equal", 24, 3),
    Sketcher.Constraint("Equal", 64, 37),
    Sketcher.Constraint("Equal", 62, 39),
    Sketcher.Constraint("Equal", 37, 79),
    Sketcher.Constraint("Equal", 39, 81),
    Sketcher.Constraint("Equal", 0, 2),
    Sketcher.Constraint("Equal", 36, 38),
    Sketcher.Constraint("Diameter", 17, Q("7 mm")),
    Sketcher.Constraint("Diameter", 16, Q("2.3 mm")),
    Sketcher.Constraint("Diameter", 18, Q("3.3 mm")),
    Sketcher.Constraint("Distance", 1, Q("35 mm")),
    Sketcher.Constraint("DistanceY", 28, 3, -1, 1, Q("18 mm")),
    Sketcher.Constraint("DistanceX", -1, 1, 41, 3, Q("18 mm")),
    Sketcher.Constraint("DistanceX", 10, 2, -1, 1, Q("5 mm")),
    Sketcher.Constraint("Angle", 36, Q("-164.9997 deg")),
    Sketcher.Constraint("DistanceX", 7, 2, 7, 1, Q("116.066 mm")),
    Sketcher.Constraint("Distance", 36, Q("7.947 mm")),
    Sketcher.Constraint("DistanceX", 54, 1, 54, 2, Q("8.9176 mm")),
    Sketcher.Constraint("DistanceY", 16, 3, -1, 1, Q("5.657 mm")),
    Sketcher.Constraint("DistanceY", -1, 1, 19, 3, Q("1.109 mm")),
    Sketcher.Constraint("DistanceX", -1, 1, 29, 3, Q("151.321 mm")),
    Sketcher.Constraint("DistanceX", -1, 1, 30, 3, Q("159.806 mm")),
    Sketcher.Constraint("DistanceX", -1, 1, 43, 3, Q("5.657 mm")),
    Sketcher.Constraint("DistanceY", 47, 3, -1, 1, Q("151.321 mm")),
    Sketcher.Constraint("DistanceY", 49, 3, -1, 1, Q("159.806 mm")),
    Sketcher.Constraint("DistanceX", 67, 3, -1, 1, Q("1.109 mm")),
    Sketcher.Constraint("DistanceY", -1, 1, 36, 2, Q("2.402 mm")),
    Sketcher.Constraint("DistanceY", -1, 1, 62, 2, Q("14.843 mm")),
    Sketcher.Constraint("DistanceX", 63, 2, -1, 1, Q("2.402 mm")),
    Sketcher.Constraint("DistanceX", 80, 2, -1, 1, Q("14.843 mm")),
    Sketcher.Constraint("DistanceX", -1, 1, 16, 3, Q("149.9066 mm")),
    Sketcher.Constraint("DistanceX", -1, 1, 18, 3, Q("137.5635 mm")),
    Sketcher.Constraint("DistanceX", -1, 1, 19, 3, Q("94.7817 mm")),
    Sketcher.Constraint("DistanceY", -1, 1, 29, 3, Q("4.2426 mm")),
    Sketcher.Constraint("DistanceX", -1, 1, 31, 3, Q("161.2203 mm")),
    Sketcher.Constraint("DistanceX", -1, 1, 32, 3, Q("60.7817 mm")),
    Sketcher.Constraint("DistanceX", -1, 1, 33, 3, Q("156.6725 mm")),
    Sketcher.Constraint("DistanceY", 33, 3, -1, 1, Q("94.7817 mm")),
    Sketcher.Constraint("DistanceY", 34, 3, -1, 1, Q("60.7817 mm")),
    Sketcher.Constraint("DistanceX", -1, 1, 40, 3, Q("173.5635 mm")),
    Sketcher.Constraint("DistanceY", 44, 3, -1, 1, Q("149.9066 mm")),
    Sketcher.Constraint("DistanceY", 46, 3, -1, 1, Q("137.5635 mm")),
    Sketcher.Constraint("DistanceY", 50, 3, -1, 1, Q("161.2203 mm")),
    Sketcher.Constraint("DistanceX", -1, 1, 51, 3, Q("4.2426 mm")),
    Sketcher.Constraint("DistanceY", 57, 3, -1, 1, Q("173.5635 mm")),
    Sketcher.Constraint("DistanceY", 59, 3, -1, 1, Q("156.6725 mm")),
    Sketcher.Constraint("DistanceX", -1, 1, 36, 2, Q("162.7302 mm")),
    Sketcher.Constraint("DistanceX", -1, 1, 53, 2, Q("151.1047 mm")),
    Sketcher.Constraint("DistanceY", 53, 2, -1, 1, Q("170.4065 mm")),
    Sketcher.Constraint("DistanceY", 78, 2, -1, 1, Q("157.9654 mm")),
])
pad1 = body.newObject("PartDesign::Pad", "Pad")
pad1.Profile = sketch1
pad1.Length = 4
pad1.Reversed = True
doc.recompute()

fillet = body.newObject("PartDesign::Fillet", "Fillet")
fillet.Base = (pad1, edges_at(pad1, [
    (180.312, 2, 0),
    (155.564, 2, 24.749),
    (0, 2, 24.749),
    (-24.749, 2, 0),
    (-24.749, 2, -155.564),
    (0, 2, -180.312),
    (155.564, 2, -180.312),
    (180.312, 2, -155.564),
]))
fillet.Radius = 5

doc.recompute()
